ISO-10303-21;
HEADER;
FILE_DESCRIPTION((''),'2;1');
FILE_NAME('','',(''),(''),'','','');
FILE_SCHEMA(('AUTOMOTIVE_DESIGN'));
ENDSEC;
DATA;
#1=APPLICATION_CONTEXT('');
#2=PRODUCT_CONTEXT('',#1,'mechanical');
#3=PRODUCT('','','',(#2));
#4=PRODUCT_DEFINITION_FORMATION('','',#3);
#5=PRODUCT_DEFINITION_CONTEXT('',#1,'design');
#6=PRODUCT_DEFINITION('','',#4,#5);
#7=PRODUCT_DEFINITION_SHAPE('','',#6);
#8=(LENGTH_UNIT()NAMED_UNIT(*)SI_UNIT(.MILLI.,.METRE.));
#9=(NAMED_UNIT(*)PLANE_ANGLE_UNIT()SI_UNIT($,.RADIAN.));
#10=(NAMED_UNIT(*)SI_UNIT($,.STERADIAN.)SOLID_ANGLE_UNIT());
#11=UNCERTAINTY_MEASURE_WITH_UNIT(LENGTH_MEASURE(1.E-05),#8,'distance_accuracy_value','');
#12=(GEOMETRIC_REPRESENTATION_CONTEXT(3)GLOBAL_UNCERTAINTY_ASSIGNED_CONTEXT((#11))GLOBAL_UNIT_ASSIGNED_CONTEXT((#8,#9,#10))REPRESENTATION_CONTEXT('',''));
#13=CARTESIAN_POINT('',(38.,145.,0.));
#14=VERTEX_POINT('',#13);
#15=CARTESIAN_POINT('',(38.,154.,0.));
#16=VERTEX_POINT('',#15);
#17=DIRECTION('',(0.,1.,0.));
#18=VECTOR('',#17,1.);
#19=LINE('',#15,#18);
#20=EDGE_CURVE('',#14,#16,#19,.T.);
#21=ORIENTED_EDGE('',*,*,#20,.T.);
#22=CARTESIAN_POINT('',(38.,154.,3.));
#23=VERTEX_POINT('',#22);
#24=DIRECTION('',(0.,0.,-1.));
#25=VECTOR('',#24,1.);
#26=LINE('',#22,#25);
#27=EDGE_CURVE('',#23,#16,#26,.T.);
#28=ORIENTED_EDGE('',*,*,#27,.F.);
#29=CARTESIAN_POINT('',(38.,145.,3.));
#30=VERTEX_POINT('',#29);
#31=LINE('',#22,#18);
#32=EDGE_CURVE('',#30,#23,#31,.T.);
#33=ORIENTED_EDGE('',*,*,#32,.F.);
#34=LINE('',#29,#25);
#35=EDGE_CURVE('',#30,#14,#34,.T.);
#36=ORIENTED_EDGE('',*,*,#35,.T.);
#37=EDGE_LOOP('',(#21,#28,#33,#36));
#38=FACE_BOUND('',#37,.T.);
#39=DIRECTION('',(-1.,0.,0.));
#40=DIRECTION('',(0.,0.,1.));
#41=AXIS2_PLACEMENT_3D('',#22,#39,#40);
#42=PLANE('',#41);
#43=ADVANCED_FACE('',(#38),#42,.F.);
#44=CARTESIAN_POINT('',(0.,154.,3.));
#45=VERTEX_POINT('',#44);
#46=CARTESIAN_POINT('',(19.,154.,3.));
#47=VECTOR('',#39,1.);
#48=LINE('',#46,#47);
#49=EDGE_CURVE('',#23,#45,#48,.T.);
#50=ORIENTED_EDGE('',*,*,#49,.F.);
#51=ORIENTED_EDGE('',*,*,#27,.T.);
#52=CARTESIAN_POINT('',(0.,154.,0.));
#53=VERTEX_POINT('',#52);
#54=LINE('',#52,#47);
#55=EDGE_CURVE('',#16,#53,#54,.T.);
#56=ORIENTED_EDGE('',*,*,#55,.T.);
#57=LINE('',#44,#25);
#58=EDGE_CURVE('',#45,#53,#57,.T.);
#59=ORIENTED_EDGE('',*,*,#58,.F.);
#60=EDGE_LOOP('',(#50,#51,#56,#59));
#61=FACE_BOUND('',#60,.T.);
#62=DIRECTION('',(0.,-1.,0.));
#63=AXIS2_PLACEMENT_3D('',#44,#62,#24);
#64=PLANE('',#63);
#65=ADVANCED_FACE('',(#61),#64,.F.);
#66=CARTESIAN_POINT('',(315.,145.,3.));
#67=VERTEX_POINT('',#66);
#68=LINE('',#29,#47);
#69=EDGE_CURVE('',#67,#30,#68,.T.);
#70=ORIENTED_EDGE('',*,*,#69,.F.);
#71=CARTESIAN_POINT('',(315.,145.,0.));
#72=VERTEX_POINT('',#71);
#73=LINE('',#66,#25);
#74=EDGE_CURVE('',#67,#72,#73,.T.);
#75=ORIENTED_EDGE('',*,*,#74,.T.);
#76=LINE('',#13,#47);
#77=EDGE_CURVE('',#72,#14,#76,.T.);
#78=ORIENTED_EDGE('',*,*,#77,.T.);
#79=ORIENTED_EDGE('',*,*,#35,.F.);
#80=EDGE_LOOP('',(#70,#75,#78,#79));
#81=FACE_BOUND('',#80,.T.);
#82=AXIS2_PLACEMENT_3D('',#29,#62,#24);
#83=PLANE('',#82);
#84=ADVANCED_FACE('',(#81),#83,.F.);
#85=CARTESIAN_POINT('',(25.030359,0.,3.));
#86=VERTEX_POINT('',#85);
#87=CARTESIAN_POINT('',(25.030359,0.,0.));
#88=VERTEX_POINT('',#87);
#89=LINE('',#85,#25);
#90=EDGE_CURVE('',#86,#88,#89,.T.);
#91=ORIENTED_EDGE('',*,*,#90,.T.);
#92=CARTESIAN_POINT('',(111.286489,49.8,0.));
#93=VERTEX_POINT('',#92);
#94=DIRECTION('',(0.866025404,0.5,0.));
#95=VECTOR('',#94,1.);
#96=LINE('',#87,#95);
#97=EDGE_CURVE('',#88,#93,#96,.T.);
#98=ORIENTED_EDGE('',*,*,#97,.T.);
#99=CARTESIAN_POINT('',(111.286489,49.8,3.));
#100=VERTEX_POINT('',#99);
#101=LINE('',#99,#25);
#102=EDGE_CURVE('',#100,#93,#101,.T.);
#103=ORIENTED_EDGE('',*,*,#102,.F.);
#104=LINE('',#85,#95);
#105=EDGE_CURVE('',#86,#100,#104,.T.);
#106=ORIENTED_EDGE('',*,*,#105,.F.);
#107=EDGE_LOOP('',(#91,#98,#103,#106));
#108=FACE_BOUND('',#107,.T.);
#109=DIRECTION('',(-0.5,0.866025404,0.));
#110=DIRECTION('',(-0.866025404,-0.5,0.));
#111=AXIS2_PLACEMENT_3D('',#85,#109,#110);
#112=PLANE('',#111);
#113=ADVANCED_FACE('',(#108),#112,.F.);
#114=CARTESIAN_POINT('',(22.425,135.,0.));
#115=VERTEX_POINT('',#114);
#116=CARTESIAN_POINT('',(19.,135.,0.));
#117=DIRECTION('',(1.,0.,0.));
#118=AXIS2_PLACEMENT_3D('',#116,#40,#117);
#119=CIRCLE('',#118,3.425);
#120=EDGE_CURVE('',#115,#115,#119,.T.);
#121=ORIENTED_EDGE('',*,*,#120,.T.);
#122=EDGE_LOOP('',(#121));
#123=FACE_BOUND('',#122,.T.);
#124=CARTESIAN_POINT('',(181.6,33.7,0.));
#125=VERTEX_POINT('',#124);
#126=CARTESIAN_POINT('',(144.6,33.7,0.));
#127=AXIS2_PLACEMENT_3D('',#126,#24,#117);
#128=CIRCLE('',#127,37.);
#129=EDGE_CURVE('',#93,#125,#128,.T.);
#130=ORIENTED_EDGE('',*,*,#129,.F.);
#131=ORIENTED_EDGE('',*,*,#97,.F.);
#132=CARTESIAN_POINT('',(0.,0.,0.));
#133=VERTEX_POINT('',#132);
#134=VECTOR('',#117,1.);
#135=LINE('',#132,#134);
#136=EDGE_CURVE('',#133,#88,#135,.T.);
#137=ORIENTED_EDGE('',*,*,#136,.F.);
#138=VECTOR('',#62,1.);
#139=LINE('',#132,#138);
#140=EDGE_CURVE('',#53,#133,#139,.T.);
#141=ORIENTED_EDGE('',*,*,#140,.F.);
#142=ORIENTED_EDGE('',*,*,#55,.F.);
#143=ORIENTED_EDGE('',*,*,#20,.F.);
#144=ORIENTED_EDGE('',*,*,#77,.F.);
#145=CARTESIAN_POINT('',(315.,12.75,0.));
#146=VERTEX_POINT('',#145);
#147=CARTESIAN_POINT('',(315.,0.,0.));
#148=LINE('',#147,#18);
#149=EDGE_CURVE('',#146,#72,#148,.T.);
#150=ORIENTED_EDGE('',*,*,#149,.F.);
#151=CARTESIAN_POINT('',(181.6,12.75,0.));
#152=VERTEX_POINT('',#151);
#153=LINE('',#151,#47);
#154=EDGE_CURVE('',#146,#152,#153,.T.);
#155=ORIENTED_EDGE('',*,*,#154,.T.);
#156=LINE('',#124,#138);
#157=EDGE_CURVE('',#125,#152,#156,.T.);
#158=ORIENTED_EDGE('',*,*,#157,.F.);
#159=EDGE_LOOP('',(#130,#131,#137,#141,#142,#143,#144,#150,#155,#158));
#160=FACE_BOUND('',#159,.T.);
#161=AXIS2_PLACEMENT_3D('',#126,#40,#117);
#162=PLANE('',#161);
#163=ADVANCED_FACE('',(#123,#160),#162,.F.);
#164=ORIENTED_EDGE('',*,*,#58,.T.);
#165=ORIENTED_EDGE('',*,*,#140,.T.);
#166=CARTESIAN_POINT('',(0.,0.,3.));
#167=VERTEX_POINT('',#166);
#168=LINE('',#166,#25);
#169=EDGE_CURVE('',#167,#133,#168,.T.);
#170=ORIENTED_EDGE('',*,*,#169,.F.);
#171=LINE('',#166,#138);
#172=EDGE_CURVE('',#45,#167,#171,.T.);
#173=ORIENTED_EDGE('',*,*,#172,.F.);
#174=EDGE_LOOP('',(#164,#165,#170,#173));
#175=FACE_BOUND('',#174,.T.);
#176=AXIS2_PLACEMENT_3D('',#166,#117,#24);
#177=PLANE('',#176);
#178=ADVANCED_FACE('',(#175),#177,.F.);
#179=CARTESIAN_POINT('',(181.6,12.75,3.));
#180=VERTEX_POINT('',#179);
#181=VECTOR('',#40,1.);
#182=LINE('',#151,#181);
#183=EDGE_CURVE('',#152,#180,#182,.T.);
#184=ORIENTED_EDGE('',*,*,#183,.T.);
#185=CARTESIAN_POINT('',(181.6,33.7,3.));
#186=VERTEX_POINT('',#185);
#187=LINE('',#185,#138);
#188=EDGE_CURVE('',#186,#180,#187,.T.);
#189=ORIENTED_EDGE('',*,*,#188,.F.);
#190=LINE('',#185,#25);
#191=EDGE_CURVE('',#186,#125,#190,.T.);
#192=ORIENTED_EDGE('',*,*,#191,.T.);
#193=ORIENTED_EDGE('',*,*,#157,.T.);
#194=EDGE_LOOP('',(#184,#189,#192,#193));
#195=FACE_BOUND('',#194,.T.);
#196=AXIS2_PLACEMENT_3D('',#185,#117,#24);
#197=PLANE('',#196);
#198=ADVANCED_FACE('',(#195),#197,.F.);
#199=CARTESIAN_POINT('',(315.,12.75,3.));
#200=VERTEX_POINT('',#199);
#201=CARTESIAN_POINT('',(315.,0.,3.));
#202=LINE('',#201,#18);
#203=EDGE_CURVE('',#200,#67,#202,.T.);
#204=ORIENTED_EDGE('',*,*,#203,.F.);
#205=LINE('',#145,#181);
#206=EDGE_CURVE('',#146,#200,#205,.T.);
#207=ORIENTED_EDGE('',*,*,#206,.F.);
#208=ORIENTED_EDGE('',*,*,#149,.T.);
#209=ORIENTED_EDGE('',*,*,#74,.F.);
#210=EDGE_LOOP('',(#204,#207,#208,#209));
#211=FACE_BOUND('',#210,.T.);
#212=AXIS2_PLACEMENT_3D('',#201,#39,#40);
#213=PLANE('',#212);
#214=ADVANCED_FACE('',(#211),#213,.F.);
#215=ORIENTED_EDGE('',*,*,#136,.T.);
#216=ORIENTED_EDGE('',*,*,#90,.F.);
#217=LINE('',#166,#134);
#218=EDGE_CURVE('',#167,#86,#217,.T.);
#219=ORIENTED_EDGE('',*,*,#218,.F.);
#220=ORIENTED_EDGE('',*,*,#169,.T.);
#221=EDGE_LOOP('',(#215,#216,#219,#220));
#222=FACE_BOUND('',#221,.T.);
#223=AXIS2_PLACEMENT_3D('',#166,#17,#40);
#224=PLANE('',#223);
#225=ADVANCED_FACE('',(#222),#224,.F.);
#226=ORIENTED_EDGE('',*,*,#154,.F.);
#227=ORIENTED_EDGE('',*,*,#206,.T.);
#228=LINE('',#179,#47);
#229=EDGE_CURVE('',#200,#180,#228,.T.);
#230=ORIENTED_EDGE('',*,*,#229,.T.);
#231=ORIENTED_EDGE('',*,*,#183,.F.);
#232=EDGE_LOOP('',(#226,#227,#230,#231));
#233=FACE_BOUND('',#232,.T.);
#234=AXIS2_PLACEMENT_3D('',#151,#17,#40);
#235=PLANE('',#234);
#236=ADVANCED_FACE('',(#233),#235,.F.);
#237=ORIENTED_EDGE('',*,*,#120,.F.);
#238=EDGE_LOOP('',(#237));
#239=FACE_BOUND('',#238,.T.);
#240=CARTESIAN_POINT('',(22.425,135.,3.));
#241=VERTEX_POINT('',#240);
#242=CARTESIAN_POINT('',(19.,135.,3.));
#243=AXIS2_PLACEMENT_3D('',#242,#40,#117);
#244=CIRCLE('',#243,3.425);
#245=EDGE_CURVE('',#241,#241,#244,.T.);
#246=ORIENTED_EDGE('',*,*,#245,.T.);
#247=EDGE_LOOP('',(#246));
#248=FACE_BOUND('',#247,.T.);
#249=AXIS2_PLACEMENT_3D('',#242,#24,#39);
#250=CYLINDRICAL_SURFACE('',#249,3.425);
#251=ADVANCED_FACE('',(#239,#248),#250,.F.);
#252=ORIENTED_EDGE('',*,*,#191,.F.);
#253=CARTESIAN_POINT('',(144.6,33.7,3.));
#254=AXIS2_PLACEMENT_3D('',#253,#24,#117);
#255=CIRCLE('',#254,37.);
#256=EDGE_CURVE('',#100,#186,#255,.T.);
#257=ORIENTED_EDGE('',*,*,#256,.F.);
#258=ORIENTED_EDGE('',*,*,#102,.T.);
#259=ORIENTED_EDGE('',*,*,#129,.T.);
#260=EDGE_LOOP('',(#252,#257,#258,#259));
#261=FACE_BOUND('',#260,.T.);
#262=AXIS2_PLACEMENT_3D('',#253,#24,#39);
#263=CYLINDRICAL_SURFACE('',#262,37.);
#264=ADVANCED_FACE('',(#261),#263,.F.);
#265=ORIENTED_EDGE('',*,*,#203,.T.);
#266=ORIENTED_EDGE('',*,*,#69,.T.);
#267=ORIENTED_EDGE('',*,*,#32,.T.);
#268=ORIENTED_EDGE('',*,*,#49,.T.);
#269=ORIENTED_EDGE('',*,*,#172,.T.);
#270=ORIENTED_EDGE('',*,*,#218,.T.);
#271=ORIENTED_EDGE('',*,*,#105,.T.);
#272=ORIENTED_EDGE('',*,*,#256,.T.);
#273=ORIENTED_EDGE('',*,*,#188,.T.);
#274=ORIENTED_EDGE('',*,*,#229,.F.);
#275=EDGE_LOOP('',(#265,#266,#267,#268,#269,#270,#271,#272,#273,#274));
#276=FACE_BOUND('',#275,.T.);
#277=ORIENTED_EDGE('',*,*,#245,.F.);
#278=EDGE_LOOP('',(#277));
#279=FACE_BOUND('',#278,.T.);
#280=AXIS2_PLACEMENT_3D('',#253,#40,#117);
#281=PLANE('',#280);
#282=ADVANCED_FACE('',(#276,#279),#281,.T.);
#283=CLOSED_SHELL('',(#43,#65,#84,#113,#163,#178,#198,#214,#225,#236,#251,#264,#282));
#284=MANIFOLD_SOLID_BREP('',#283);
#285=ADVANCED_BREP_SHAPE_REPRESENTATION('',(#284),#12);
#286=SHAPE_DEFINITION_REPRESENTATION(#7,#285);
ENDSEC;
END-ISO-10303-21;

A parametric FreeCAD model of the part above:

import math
import FreeCAD as App
import Part
import Sketcher
from FreeCAD import Vector
Q = App.Units.Quantity


def add_polygon(sketch, points):
    """Adds a closed chain of lines whose ends are joined by coincident constraints."""
    first, n = sketch.GeometryCount, len(points)
    for a, b in zip(points, points[1:] + points[:1]):
        sketch.addGeometry(Part.LineSegment(App.Vector(*a, 0), App.Vector(*b, 0)), False)
    for i in range(n):
        sketch.addConstraint(Sketcher.Constraint("Coincident", first + i, 2, first + (i + 1) % n, 1))

doc = App.newDocument("Part")
body = doc.addObject("PartDesign::Body", "Body")

sketch1 = body.newObject("Sketcher::SketchObject", "Sketch")
sketch1.AttachmentSupport = (doc.getObject("XY_Plane"), [""])
sketch1.MapMode = "FlatFace"
sketch1.addGeometry([
    Part.LineSegment(Vector(25, 0, 0), Vector(111.3, 49.8, 0)),
    Part.ArcOfCircle(Part.Circle(Vector(144.6, 33.7, 0), Vector(0, 0, 1), 37), math.radians(0), math.radians(154)),
    Part.LineSegment(Vector(181.6, 33.7, 0), Vector(181.6, 0, 0)),
    Part.LineSegment(Vector(181.6, 0, 0), Vector(315, 0, 0)),
    Part.LineSegment(Vector(315, 0, 0), Vector(315, 145, 0)),
    Part.LineSegment(Vector(315, 145, 0), Vector(38, 145, 0)),
    Part.LineSegment(Vector(38, 145, 0), Vector(38, 154, 0)),
    Part.LineSegment(Vector(38, 154, 0), Vector(0, 154, 0)),
    Part.LineSegment(Vector(0, 154, 0), Vector(0, 0, 0)),
    Part.LineSegment(Vector(0, 0, 0), Vector(25, 0, 0)),
    Part.Circle(Vector(19, 135, 0), Vector(0, 0, 1), 3.4),
], False)
sketch1.addConstraint([
    Sketcher.Constraint("Coincident", 0, 2, 1, 2),
    Sketcher.Constraint("Tangent", 1, 1, 2, 1),
    Sketcher.Constraint("Coincident", 2, 2, 3, 1),
    Sketcher.Constraint("Coincident", 3, 2, 4, 1),
    Sketcher.Constraint("Coincident", 4, 2, 5, 1),
    Sketcher.Constraint("Coincident", 5, 2, 6, 1),
    Sketcher.Constraint("Coincident", 6, 2, 7, 1),
    Sketcher.Constraint("Coincident", 7, 2, 8, 1),
    Sketcher.Constraint("Coincident", 8, 2, 9, 1),
    Sketcher.Constraint("Coincident", 9, 2, 0, 1),
    Sketcher.Constraint("Vertical", 2),
    Sketcher.Constraint("Horizontal", 3),
    Sketcher.Constraint("Vertical", 4),
    Sketcher.Constraint("Horizontal", 5),
    Sketcher.Constraint("Vertical", 6),
    Sketcher.Constraint("Horizontal", 7),
    Sketcher.Constraint("Vertical", 8),
    Sketcher.Constraint("Horizontal", 9),
    Sketcher.Constraint("Coincident", 8, 2, -1, 1),
    Sketcher.Constraint("PointOnObject", 2, 2, -1),
    Sketcher.Constraint("Radius", 1, 37.0),
    Sketcher.Constraint("Diameter", 10, 6.85),
    Sketcher.Constraint("DistanceX", 5, 2, 5, 1, 277.0),
    Sketcher.Constraint("DistanceX", 7, 2, 7, 1, 38.0),
    Sketcher.Constraint("DistanceY", 4, 1, 4, 2, 145.0),
    Sketcher.Constraint("DistanceY", 6, 1, 6, 2, 9.0),
    Sketcher.Constraint("Angle", 0, Q("30 deg")),
    Sketcher.Constraint("DistanceX", 3, 1, 3, 2, 133.4),
    Sketcher.Constraint("DistanceY", 2, 2, 2, 1, 33.7),
    Sketcher.Constraint("DistanceX", -1, 1, 10, 3, 19.0),
    Sketcher.Constraint("DistanceY", -1, 1, 10, 3, 135.0),
    Sketcher.Constraint("Distance", 0, 99.6),
])
pad1 = body.newObject("PartDesign::Pad", "Pad")
pad1.Profile = sketch1
pad1.Length = 3

sketch2 = body.newObject("Sketcher::SketchObject", "Sketch001")
sketch2.AttachmentSupport = (doc.getObject("XY_Plane"), [""])
sketch2.MapMode = "FlatFace"
sketch2.AttachmentOffset = App.Placement(Vector(0, 0, 3), App.Rotation())
add_polygon(sketch2, [(182, 13), (182, 0), (315, 0), (315, 13)])
sketch2.addConstraint([
    Sketcher.Constraint("Vertical", 0),
    Sketcher.Constraint("Horizontal", 1),
    Sketcher.Constraint("Vertical", 2),
    Sketcher.Constraint("Horizontal", 3),
    Sketcher.Constraint("PointOnObject", 0, 2, -1),
    Sketcher.Constraint("DistanceX", 1, 1, 1, 2, 133.4),
    Sketcher.Constraint("DistanceX", -1, 1, 1, 2, 315.0),
    Sketcher.Constraint("DistanceY", 0, 2, 0, 1, 12.75),
])
pocket1 = body.newObject("PartDesign::Pocket", "Pocket")
pocket1.Profile = sketch2
pocket1.Type = "ThroughAll"

doc.recompute()
